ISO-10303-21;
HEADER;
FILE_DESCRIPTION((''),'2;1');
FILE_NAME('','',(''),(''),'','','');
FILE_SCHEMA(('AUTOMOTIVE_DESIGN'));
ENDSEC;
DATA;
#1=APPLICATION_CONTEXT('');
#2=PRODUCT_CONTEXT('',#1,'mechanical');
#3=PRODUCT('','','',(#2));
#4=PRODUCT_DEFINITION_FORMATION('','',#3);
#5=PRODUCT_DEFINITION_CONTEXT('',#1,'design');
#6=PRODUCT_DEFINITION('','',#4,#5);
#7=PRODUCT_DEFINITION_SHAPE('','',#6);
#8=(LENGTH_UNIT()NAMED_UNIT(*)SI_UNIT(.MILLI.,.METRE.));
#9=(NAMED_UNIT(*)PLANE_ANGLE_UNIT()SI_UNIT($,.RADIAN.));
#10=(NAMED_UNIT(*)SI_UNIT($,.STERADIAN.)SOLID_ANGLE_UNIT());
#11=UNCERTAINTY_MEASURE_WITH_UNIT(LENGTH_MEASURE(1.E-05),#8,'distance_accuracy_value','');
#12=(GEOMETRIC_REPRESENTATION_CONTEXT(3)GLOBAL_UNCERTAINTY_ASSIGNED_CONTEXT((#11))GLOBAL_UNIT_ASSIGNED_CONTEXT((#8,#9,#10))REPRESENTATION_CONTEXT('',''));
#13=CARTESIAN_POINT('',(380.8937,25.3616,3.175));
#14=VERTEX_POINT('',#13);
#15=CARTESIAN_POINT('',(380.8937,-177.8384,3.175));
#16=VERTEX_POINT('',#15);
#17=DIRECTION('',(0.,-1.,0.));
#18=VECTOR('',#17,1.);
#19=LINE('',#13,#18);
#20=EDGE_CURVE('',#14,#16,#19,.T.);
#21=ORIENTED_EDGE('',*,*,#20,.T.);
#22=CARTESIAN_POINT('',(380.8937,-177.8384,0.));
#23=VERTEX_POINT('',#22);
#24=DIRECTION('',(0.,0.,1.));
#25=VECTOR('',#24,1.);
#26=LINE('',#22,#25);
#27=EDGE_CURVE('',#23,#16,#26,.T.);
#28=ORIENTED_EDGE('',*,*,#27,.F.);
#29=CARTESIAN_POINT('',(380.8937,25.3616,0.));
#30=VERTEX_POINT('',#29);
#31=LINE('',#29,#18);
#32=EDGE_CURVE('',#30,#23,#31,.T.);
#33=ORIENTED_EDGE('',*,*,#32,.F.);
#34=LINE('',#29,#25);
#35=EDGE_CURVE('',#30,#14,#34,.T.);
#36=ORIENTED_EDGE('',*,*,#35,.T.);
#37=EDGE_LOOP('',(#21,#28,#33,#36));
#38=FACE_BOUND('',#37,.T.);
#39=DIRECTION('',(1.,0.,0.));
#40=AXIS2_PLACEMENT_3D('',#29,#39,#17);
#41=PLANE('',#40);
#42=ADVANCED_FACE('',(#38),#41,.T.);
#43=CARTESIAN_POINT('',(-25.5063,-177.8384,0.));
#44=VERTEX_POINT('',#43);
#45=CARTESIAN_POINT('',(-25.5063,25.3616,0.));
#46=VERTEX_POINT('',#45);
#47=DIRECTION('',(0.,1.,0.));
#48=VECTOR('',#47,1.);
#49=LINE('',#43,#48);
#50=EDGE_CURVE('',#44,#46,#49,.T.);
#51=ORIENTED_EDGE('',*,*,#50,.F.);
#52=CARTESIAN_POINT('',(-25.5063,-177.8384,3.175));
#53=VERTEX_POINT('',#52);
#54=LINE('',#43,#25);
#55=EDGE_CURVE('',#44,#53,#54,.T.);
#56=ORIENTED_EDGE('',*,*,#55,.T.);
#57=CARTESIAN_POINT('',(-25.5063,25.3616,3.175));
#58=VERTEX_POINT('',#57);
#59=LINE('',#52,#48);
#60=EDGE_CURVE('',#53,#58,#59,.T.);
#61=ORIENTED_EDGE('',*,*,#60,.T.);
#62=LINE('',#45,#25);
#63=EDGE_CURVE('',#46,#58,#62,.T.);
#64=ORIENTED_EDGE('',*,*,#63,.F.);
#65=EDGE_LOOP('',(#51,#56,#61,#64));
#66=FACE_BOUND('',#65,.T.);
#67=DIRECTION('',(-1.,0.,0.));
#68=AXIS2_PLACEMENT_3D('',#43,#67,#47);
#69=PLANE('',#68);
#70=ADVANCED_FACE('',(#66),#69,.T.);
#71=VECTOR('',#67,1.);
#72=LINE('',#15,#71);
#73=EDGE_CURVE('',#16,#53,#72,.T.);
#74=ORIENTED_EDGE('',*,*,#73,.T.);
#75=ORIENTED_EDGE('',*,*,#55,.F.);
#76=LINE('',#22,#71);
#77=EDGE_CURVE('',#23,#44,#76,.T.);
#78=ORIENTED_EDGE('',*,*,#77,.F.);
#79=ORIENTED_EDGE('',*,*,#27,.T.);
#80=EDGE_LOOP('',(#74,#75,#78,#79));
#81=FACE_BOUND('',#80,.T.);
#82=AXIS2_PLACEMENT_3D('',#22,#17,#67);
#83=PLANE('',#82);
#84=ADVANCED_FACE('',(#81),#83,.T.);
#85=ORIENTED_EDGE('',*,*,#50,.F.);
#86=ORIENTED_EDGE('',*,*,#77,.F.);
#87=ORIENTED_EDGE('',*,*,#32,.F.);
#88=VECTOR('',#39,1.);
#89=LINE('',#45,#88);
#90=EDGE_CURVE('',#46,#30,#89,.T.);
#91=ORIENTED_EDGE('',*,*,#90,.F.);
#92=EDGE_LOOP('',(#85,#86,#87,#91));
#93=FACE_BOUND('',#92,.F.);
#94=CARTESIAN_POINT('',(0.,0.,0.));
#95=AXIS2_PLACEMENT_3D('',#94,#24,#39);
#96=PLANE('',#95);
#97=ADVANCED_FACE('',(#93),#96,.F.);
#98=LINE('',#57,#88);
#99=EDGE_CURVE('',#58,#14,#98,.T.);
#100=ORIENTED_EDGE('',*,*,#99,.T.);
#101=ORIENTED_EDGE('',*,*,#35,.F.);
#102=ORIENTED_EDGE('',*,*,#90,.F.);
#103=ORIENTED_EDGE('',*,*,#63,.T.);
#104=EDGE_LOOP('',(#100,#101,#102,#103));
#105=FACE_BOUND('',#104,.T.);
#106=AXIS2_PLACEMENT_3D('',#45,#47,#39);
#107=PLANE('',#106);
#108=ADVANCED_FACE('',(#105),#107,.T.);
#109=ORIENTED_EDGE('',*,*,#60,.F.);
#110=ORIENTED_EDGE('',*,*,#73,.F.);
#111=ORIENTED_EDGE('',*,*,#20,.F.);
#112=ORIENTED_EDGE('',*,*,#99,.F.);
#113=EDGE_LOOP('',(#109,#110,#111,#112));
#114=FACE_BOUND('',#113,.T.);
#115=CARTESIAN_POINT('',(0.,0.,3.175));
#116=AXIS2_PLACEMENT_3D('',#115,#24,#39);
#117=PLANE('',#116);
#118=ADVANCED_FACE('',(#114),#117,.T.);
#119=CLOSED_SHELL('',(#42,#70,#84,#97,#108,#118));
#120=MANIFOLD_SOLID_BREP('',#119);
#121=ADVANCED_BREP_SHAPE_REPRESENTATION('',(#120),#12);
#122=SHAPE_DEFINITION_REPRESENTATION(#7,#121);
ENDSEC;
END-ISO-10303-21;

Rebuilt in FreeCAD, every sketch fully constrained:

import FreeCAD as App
import Part
import Sketcher
Q = App.Units.Quantity

doc = App.newDocument("Part")
params = doc.addObject("Spreadsheet::Sheet", "Params")
for row, (alias, value) in enumerate([
    ("sketch1_width", "16 in"),
    ("sketch1_height", "8 in"),
    ("pad1_length", "0.125 in"),
], start=1):
    params.set(f"A{row}", alias)
    params.set(f"B{row}", "=" + value)
    params.setAlias(f"B{row}", alias)

body = doc.addObject("PartDesign::Body", "Body")

sketch1 = body.newObject("Sketcher::SketchObject", "Sketch")
sketch1.AttachmentSupport = (doc.getObject("XY_Plane"), [""])
sketch1.MapMode = "FlatFace"
sketch1.addGeometry([
    Part.LineSegment(App.Vector(381, 25, 0), App.Vector(-26, 25, 0)),
    Part.LineSegment(App.Vector(-26, 25, 0), App.Vector(-26, -178, 0)),
    Part.LineSegment(App.Vector(-26, -178, 0), App.Vector(381, -178, 0)),
    Part.LineSegment(App.Vector(381, -178, 0), App.Vector(381, 25, 0)),
], False)
sketch1.addConstraint([
    Sketcher.Constraint("Coincident", 0, 2, 1, 1),
    Sketcher.Constraint("Coincident", 1, 2, 2, 1),
    Sketcher.Constraint("Coincident", 2, 2, 3, 1),
    Sketcher.Constraint("Coincident", 3, 2, 0, 1),
    Sketcher.Constraint("Horizontal", 0),
    Sketcher.Constraint("Vertical", 1),
    Sketcher.Constraint("Horizontal", 2),
    Sketcher.Constraint("Vertical", 3),
    Sketcher.Constraint("DistanceX", 0, 2, 0, 1, Q("16 in")),
    Sketcher.Constraint("DistanceY", 1, 2, 1, 1, Q("8 in")),
    Sketcher.Constraint("DistanceY", -1, 1, 0, 2, Q("0.9985 in")),
    Sketcher.Constraint("DistanceX", 0, 2, -1, 1, 25.5063),
])
sketch1.setExpression("Constraints[8]", "Params.sketch1_width")
sketch1.setExpression("Constraints[9]", "Params.sketch1_height")
pad1 = body.newObject("PartDesign::Pad", "Pad")
pad1.Profile = sketch1
pad1.setExpression("Length", "Params.pad1_length")

doc.recompute()
